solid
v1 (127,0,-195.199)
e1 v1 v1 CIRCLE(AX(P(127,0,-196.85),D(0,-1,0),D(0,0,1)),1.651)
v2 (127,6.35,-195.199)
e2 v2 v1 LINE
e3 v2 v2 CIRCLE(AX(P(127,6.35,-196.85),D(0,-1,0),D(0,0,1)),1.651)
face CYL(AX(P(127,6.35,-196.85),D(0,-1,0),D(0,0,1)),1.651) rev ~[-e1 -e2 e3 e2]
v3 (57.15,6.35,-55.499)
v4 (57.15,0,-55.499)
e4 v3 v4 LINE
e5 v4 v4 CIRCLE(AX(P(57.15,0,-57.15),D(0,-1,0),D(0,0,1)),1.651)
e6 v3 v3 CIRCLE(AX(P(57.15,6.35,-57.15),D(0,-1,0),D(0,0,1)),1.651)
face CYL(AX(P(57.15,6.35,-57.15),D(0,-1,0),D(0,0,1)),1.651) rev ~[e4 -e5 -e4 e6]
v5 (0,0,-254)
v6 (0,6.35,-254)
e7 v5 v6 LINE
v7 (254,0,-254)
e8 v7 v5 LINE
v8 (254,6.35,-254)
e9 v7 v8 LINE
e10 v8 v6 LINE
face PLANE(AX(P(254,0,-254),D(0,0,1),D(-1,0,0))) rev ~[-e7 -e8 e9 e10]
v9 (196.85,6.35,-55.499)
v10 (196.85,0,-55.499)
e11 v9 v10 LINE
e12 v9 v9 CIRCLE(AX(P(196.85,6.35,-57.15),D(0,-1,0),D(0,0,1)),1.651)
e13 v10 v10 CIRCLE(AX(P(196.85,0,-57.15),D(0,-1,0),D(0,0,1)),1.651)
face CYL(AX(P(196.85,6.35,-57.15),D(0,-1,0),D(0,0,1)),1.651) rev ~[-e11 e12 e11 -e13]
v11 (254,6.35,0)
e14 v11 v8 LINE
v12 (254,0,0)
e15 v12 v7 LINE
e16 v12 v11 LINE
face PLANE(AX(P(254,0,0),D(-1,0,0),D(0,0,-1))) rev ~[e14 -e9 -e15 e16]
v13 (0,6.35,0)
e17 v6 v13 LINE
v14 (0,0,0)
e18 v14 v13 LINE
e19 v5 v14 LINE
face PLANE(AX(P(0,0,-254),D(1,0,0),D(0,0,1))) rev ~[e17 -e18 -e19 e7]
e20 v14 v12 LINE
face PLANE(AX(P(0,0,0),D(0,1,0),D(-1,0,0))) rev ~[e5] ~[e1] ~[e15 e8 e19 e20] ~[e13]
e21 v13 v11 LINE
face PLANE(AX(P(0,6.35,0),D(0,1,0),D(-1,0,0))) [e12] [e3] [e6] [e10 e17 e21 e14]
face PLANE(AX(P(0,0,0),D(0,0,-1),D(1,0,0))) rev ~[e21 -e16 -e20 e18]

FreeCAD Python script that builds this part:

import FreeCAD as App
import Part
import Sketcher
from FreeCAD import Vector
Q = App.Units.Quantity


def add_polygon(sketch, points):
    """Adds a closed chain of lines whose ends are joined by coincident constraints."""
    first, n = sketch.GeometryCount, len(points)
    for a, b in zip(points, points[1:] + points[:1]):
        sketch.addGeometry(Part.LineSegment(App.Vector(*a, 0), App.Vector(*b, 0)), False)
    for i in range(n):
        sketch.addConstraint(Sketcher.Constraint("Coincident", first + i, 2, first + (i + 1) % n, 1))

doc = App.newDocument("Part")
params = doc.addObject("Spreadsheet::Sheet", "Params")
for row, (alias, value) in enumerate([
    ("sketch1_width", "10 in"),
    ("pad1_length", "0.25 in"),
    ("sketch2_diameter", "0.13 in"),
    ("hole_diameter", "0.13 in"),
], start=1):
    params.set(f"A{row}", alias)
    params.set(f"B{row}", "=" + value)
    params.setAlias(f"B{row}", alias)

body = doc.addObject("PartDesign::Body", "Body")

sketch1 = body.newObject("Sketcher::SketchObject", "Sketch")
sketch1.AttachmentSupport = (doc.getObject("XZ_Plane"), [""])
sketch1.MapMode = "FlatFace"
add_polygon(sketch1, [(0, -254), (0, 0), (254, 0), (254, -254)])
sketch1.addConstraint(Sketcher.Constraint("Vertical", 0))
sketch1.addConstraint(Sketcher.Constraint("Horizontal", 1))
sketch1.addConstraint(Sketcher.Constraint("Vertical", 2))
sketch1.addConstraint(Sketcher.Constraint("Horizontal", 3))
sketch1.addConstraint(Sketcher.Constraint("Coincident", 0, 2, -1, 1))
sketch1.addConstraint(Sketcher.Constraint("Equal", 3, 0))
sketch1.addConstraint(Sketcher.Constraint("DistanceX", 1, 1, 1, 2, Q("10 in")))
sketch1.setExpression("Constraints[10]", "Params.sketch1_width")
pad1 = body.newObject("PartDesign::Pad", "Pad")
pad1.Profile = sketch1
pad1.setExpression("Length", "Params.pad1_length")
pad1.Reversed = True

sketch2 = body.newObject("Sketcher::SketchObject", "Sketch001")
sketch2.AttachmentSupport = (doc.getObject("XZ_Plane"), [""])
sketch2.MapMode = "FlatFace"
sketch2.AttachmentOffset = App.Placement(Vector(0, 0, -0.25 * 25.4), App.Rotation())
sketch2.addGeometry(Part.Circle(Vector(57.1, -57.1, 0), Vector(0, 0, 1), 1.7), False)
sketch2.addGeometry(Part.Circle(Vector(196.8, -57.1, 0), Vector(0, 0, 1), 1.7), False)
sketch2.addGeometry(Part.Circle(Vector(127, -196.8, 0), Vector(0, 0, 1), 1.7), False)
sketch2.addConstraint(Sketcher.Constraint("Equal", 0, 1))
sketch2.addConstraint(Sketcher.Constraint("Equal", 1, 2))
sketch2.addConstraint(Sketcher.Constraint("Horizontal", 0, 3, 1, 3))
sketch2.addConstraint(Sketcher.Constraint("Diameter", 0, Q("0.13 in")))
sketch2.addConstraint(Sketcher.Constraint("DistanceX", -1, 1, 2, 3, Q("5 in")))
sketch2.addConstraint(Sketcher.Constraint("DistanceX", 0, 3, 1, 3, Q("5.5 in")))
sketch2.addConstraint(Sketcher.Constraint("DistanceY", 2, 3, 0, 3, Q("5.5 in")))
sketch2.addConstraint(Sketcher.Constraint("DistanceX", -1, 1, 0, 3, Q("2.25 in")))
sketch2.addConstraint(Sketcher.Constraint("DistanceY", 0, 3, -1, 1, Q("2.25 in")))
sketch2.setExpression("Constraints[3]", "Params.sketch2_diameter")
doc.recompute()
hole = body.newObject("PartDesign::Hole", "Hole")
hole.Profile = sketch2
hole.ThreadType = "None"
hole.setExpression("Diameter", "Params.hole_diameter")
hole.DepthType = "ThroughAll"
hole.Reversed = True

doc.recompute()
